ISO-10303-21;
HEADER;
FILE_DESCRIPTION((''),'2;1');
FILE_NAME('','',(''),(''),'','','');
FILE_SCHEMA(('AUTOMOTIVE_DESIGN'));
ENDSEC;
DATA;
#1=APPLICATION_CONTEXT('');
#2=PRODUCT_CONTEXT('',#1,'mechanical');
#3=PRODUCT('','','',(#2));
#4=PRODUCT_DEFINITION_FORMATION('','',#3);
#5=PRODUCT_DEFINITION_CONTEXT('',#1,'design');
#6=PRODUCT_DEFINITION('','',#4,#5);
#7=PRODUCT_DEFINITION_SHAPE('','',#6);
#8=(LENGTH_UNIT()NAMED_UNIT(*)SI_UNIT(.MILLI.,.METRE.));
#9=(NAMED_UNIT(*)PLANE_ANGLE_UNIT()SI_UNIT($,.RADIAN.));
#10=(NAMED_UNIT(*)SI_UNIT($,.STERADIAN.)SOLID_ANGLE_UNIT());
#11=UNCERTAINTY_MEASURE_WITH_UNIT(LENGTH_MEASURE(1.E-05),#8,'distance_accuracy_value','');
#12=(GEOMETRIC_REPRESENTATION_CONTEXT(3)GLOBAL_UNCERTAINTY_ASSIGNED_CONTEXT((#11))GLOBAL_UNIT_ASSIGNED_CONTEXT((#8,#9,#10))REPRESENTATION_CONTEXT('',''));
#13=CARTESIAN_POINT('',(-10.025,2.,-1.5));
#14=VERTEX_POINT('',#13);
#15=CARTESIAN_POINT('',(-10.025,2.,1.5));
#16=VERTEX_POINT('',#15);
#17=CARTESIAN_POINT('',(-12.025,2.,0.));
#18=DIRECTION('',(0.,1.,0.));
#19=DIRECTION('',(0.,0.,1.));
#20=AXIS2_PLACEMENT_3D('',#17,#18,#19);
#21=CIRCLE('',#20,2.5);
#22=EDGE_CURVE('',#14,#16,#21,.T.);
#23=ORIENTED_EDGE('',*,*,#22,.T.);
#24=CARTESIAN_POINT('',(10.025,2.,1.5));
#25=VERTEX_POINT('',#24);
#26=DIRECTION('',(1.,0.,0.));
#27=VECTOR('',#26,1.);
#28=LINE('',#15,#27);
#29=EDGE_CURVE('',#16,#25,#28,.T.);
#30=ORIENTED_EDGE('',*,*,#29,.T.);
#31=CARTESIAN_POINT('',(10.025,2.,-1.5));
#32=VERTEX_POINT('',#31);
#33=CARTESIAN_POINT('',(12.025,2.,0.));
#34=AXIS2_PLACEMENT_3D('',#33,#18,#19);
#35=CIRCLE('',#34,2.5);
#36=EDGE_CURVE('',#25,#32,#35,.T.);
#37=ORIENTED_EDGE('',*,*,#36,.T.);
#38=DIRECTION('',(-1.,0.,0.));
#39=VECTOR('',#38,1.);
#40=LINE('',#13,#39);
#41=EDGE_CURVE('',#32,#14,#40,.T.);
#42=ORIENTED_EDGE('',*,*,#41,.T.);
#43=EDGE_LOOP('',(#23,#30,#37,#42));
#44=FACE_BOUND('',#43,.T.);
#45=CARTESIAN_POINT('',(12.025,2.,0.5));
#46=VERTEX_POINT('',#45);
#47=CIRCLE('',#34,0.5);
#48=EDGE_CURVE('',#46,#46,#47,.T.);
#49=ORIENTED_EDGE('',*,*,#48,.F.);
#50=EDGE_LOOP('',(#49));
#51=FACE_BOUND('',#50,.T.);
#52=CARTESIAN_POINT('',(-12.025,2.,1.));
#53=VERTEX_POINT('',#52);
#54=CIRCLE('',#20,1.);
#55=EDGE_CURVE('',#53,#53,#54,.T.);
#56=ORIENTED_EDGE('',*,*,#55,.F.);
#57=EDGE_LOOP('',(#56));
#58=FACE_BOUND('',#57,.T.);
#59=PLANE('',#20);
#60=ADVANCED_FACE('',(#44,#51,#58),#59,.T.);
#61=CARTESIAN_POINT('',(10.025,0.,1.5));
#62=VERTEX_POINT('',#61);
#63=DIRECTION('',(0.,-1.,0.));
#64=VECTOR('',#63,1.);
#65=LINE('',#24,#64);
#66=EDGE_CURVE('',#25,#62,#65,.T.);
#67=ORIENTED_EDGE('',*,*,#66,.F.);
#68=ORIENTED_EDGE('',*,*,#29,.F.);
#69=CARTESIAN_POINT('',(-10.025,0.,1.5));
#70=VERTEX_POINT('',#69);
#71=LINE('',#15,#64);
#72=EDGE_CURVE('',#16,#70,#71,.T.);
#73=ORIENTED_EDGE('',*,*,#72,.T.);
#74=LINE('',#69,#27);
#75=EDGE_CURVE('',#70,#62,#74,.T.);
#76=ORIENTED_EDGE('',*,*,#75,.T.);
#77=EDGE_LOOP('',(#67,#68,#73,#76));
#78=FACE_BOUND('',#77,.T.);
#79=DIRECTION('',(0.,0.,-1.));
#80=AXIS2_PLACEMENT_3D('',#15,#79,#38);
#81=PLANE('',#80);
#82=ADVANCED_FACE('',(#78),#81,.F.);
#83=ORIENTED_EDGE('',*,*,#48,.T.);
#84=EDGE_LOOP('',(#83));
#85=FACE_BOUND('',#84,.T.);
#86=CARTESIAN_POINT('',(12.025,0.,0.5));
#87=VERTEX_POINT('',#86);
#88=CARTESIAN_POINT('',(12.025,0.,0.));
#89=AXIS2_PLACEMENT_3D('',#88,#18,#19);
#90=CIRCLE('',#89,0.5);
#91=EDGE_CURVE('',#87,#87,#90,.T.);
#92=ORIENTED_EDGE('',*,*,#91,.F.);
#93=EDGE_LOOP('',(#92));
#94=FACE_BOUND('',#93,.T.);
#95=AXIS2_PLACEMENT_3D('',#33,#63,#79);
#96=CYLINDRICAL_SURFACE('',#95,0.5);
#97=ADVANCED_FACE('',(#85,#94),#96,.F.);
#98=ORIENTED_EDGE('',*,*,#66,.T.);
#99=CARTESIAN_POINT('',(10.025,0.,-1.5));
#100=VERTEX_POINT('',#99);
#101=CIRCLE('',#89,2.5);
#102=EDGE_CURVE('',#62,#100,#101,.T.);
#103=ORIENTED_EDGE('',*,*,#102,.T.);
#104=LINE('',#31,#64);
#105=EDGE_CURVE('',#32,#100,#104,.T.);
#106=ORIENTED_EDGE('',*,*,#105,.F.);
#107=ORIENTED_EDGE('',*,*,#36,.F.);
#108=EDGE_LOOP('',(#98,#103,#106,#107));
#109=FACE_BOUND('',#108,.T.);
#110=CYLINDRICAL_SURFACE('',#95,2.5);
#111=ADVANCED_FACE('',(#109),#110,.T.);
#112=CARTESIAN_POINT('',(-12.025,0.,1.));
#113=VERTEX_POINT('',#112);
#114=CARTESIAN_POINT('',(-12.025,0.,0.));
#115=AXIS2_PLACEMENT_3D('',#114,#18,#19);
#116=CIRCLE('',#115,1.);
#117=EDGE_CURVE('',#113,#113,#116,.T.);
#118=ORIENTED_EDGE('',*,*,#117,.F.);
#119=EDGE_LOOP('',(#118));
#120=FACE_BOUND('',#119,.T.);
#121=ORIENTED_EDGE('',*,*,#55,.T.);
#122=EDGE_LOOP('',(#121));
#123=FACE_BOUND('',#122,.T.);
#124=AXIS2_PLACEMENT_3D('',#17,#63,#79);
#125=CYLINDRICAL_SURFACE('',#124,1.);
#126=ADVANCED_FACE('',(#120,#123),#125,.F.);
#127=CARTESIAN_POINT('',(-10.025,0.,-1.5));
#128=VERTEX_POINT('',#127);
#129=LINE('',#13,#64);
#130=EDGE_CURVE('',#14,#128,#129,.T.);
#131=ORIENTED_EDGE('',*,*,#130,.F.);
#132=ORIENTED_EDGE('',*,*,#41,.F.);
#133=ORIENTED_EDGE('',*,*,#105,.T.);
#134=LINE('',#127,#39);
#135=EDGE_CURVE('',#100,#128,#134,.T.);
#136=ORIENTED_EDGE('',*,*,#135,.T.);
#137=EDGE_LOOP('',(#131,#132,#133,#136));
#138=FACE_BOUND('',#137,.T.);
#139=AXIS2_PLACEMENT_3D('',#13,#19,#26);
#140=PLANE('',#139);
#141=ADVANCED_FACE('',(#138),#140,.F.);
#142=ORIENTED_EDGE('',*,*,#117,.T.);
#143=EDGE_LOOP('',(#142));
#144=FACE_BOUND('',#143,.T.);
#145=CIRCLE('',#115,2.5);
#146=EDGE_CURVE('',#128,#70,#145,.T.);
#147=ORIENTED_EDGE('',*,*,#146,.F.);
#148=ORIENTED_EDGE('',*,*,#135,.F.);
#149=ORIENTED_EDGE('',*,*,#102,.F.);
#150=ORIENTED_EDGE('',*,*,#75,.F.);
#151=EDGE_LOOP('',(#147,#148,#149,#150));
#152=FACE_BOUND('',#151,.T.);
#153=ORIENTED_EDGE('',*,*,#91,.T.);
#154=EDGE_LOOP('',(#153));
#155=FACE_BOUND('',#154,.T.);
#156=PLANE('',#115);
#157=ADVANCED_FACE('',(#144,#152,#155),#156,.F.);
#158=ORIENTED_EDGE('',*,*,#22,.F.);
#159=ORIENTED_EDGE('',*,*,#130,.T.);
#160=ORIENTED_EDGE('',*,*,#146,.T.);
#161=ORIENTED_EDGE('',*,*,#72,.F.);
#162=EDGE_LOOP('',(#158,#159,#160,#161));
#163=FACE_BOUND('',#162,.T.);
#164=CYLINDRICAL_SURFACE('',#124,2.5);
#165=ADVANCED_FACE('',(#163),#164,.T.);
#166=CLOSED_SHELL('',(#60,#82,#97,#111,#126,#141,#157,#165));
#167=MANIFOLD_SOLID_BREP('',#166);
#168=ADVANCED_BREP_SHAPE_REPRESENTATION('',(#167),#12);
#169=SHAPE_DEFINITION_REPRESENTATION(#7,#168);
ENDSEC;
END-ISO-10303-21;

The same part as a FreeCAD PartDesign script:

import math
import FreeCAD as App
import Part
import Sketcher
Q = App.Units.Quantity

doc = App.newDocument("Part")
body = doc.addObject("PartDesign::Body", "Body")

# Sketch on XZ plane
sketch1 = body.newObject("Sketcher::SketchObject", "Sketch")
sketch1.AttachmentSupport = (doc.getObject("XZ_Plane"), [""])
sketch1.MapMode = "FlatFace"
sketch1.addGeometry([
    Part.LineSegment(App.Vector(10, -1.5, 0), App.Vector(-10, -1.5, 0)),  # 0
    Part.ArcOfCircle(Part.Circle(App.Vector(-12, 0, 0), App.Vector(0, 0, 1), 2.5), math.radians(37), math.radians(323)),  # 1
    Part.LineSegment(App.Vector(-10, 1.5, 0), App.Vector(10, 1.5, 0)),  # 2
    Part.ArcOfCircle(Part.Circle(App.Vector(12, 0, 0), App.Vector(0, 0, 1), 2.5), math.radians(-143), math.radians(143)),  # 3
    Part.Circle(App.Vector(12, 0, 0), App.Vector(0, 0, 1), 0.5),  # 4
    Part.Circle(App.Vector(-12, 0, 0), App.Vector(0, 0, 1), 1),  # 5
], False)
sketch1.addConstraint([
    Sketcher.Constraint("Coincident", 0, 2, 1, 2),
    Sketcher.Constraint("Coincident", 1, 1, 2, 1),
    Sketcher.Constraint("Coincident", 2, 2, 3, 2),
    Sketcher.Constraint("Coincident", 3, 1, 0, 1),
    Sketcher.Constraint("Horizontal", 0),
    Sketcher.Constraint("Horizontal", 2),
    Sketcher.Constraint("Coincident", 4, 3, 3, 3),
    Sketcher.Constraint("Coincident", 5, 3, 1, 3),
    Sketcher.Constraint("Equal", 1, 3),
    Sketcher.Constraint("Symmetric", 1, 3, 3, 3, -1, 1),
    Sketcher.Constraint("Symmetric", 0, 2, 1, 1, -1),
    Sketcher.Constraint("Diameter", 4, Q("1 mm")),
    Sketcher.Constraint("Diameter", 5, Q("2 mm")),
    Sketcher.Constraint("Radius", 1, Q("2.5 mm")),
    Sketcher.Constraint("DistanceX", 1, 3, 0, 2, Q("2 mm")),
    Sketcher.Constraint("DistanceX", 0, 2, 0, 1, Q("20.05 mm")),
])
pad1 = body.newObject("PartDesign::Pad", "Pad")
pad1.Profile = sketch1
pad1.Length = 2
pad1.Reversed = True

doc.recompute()
